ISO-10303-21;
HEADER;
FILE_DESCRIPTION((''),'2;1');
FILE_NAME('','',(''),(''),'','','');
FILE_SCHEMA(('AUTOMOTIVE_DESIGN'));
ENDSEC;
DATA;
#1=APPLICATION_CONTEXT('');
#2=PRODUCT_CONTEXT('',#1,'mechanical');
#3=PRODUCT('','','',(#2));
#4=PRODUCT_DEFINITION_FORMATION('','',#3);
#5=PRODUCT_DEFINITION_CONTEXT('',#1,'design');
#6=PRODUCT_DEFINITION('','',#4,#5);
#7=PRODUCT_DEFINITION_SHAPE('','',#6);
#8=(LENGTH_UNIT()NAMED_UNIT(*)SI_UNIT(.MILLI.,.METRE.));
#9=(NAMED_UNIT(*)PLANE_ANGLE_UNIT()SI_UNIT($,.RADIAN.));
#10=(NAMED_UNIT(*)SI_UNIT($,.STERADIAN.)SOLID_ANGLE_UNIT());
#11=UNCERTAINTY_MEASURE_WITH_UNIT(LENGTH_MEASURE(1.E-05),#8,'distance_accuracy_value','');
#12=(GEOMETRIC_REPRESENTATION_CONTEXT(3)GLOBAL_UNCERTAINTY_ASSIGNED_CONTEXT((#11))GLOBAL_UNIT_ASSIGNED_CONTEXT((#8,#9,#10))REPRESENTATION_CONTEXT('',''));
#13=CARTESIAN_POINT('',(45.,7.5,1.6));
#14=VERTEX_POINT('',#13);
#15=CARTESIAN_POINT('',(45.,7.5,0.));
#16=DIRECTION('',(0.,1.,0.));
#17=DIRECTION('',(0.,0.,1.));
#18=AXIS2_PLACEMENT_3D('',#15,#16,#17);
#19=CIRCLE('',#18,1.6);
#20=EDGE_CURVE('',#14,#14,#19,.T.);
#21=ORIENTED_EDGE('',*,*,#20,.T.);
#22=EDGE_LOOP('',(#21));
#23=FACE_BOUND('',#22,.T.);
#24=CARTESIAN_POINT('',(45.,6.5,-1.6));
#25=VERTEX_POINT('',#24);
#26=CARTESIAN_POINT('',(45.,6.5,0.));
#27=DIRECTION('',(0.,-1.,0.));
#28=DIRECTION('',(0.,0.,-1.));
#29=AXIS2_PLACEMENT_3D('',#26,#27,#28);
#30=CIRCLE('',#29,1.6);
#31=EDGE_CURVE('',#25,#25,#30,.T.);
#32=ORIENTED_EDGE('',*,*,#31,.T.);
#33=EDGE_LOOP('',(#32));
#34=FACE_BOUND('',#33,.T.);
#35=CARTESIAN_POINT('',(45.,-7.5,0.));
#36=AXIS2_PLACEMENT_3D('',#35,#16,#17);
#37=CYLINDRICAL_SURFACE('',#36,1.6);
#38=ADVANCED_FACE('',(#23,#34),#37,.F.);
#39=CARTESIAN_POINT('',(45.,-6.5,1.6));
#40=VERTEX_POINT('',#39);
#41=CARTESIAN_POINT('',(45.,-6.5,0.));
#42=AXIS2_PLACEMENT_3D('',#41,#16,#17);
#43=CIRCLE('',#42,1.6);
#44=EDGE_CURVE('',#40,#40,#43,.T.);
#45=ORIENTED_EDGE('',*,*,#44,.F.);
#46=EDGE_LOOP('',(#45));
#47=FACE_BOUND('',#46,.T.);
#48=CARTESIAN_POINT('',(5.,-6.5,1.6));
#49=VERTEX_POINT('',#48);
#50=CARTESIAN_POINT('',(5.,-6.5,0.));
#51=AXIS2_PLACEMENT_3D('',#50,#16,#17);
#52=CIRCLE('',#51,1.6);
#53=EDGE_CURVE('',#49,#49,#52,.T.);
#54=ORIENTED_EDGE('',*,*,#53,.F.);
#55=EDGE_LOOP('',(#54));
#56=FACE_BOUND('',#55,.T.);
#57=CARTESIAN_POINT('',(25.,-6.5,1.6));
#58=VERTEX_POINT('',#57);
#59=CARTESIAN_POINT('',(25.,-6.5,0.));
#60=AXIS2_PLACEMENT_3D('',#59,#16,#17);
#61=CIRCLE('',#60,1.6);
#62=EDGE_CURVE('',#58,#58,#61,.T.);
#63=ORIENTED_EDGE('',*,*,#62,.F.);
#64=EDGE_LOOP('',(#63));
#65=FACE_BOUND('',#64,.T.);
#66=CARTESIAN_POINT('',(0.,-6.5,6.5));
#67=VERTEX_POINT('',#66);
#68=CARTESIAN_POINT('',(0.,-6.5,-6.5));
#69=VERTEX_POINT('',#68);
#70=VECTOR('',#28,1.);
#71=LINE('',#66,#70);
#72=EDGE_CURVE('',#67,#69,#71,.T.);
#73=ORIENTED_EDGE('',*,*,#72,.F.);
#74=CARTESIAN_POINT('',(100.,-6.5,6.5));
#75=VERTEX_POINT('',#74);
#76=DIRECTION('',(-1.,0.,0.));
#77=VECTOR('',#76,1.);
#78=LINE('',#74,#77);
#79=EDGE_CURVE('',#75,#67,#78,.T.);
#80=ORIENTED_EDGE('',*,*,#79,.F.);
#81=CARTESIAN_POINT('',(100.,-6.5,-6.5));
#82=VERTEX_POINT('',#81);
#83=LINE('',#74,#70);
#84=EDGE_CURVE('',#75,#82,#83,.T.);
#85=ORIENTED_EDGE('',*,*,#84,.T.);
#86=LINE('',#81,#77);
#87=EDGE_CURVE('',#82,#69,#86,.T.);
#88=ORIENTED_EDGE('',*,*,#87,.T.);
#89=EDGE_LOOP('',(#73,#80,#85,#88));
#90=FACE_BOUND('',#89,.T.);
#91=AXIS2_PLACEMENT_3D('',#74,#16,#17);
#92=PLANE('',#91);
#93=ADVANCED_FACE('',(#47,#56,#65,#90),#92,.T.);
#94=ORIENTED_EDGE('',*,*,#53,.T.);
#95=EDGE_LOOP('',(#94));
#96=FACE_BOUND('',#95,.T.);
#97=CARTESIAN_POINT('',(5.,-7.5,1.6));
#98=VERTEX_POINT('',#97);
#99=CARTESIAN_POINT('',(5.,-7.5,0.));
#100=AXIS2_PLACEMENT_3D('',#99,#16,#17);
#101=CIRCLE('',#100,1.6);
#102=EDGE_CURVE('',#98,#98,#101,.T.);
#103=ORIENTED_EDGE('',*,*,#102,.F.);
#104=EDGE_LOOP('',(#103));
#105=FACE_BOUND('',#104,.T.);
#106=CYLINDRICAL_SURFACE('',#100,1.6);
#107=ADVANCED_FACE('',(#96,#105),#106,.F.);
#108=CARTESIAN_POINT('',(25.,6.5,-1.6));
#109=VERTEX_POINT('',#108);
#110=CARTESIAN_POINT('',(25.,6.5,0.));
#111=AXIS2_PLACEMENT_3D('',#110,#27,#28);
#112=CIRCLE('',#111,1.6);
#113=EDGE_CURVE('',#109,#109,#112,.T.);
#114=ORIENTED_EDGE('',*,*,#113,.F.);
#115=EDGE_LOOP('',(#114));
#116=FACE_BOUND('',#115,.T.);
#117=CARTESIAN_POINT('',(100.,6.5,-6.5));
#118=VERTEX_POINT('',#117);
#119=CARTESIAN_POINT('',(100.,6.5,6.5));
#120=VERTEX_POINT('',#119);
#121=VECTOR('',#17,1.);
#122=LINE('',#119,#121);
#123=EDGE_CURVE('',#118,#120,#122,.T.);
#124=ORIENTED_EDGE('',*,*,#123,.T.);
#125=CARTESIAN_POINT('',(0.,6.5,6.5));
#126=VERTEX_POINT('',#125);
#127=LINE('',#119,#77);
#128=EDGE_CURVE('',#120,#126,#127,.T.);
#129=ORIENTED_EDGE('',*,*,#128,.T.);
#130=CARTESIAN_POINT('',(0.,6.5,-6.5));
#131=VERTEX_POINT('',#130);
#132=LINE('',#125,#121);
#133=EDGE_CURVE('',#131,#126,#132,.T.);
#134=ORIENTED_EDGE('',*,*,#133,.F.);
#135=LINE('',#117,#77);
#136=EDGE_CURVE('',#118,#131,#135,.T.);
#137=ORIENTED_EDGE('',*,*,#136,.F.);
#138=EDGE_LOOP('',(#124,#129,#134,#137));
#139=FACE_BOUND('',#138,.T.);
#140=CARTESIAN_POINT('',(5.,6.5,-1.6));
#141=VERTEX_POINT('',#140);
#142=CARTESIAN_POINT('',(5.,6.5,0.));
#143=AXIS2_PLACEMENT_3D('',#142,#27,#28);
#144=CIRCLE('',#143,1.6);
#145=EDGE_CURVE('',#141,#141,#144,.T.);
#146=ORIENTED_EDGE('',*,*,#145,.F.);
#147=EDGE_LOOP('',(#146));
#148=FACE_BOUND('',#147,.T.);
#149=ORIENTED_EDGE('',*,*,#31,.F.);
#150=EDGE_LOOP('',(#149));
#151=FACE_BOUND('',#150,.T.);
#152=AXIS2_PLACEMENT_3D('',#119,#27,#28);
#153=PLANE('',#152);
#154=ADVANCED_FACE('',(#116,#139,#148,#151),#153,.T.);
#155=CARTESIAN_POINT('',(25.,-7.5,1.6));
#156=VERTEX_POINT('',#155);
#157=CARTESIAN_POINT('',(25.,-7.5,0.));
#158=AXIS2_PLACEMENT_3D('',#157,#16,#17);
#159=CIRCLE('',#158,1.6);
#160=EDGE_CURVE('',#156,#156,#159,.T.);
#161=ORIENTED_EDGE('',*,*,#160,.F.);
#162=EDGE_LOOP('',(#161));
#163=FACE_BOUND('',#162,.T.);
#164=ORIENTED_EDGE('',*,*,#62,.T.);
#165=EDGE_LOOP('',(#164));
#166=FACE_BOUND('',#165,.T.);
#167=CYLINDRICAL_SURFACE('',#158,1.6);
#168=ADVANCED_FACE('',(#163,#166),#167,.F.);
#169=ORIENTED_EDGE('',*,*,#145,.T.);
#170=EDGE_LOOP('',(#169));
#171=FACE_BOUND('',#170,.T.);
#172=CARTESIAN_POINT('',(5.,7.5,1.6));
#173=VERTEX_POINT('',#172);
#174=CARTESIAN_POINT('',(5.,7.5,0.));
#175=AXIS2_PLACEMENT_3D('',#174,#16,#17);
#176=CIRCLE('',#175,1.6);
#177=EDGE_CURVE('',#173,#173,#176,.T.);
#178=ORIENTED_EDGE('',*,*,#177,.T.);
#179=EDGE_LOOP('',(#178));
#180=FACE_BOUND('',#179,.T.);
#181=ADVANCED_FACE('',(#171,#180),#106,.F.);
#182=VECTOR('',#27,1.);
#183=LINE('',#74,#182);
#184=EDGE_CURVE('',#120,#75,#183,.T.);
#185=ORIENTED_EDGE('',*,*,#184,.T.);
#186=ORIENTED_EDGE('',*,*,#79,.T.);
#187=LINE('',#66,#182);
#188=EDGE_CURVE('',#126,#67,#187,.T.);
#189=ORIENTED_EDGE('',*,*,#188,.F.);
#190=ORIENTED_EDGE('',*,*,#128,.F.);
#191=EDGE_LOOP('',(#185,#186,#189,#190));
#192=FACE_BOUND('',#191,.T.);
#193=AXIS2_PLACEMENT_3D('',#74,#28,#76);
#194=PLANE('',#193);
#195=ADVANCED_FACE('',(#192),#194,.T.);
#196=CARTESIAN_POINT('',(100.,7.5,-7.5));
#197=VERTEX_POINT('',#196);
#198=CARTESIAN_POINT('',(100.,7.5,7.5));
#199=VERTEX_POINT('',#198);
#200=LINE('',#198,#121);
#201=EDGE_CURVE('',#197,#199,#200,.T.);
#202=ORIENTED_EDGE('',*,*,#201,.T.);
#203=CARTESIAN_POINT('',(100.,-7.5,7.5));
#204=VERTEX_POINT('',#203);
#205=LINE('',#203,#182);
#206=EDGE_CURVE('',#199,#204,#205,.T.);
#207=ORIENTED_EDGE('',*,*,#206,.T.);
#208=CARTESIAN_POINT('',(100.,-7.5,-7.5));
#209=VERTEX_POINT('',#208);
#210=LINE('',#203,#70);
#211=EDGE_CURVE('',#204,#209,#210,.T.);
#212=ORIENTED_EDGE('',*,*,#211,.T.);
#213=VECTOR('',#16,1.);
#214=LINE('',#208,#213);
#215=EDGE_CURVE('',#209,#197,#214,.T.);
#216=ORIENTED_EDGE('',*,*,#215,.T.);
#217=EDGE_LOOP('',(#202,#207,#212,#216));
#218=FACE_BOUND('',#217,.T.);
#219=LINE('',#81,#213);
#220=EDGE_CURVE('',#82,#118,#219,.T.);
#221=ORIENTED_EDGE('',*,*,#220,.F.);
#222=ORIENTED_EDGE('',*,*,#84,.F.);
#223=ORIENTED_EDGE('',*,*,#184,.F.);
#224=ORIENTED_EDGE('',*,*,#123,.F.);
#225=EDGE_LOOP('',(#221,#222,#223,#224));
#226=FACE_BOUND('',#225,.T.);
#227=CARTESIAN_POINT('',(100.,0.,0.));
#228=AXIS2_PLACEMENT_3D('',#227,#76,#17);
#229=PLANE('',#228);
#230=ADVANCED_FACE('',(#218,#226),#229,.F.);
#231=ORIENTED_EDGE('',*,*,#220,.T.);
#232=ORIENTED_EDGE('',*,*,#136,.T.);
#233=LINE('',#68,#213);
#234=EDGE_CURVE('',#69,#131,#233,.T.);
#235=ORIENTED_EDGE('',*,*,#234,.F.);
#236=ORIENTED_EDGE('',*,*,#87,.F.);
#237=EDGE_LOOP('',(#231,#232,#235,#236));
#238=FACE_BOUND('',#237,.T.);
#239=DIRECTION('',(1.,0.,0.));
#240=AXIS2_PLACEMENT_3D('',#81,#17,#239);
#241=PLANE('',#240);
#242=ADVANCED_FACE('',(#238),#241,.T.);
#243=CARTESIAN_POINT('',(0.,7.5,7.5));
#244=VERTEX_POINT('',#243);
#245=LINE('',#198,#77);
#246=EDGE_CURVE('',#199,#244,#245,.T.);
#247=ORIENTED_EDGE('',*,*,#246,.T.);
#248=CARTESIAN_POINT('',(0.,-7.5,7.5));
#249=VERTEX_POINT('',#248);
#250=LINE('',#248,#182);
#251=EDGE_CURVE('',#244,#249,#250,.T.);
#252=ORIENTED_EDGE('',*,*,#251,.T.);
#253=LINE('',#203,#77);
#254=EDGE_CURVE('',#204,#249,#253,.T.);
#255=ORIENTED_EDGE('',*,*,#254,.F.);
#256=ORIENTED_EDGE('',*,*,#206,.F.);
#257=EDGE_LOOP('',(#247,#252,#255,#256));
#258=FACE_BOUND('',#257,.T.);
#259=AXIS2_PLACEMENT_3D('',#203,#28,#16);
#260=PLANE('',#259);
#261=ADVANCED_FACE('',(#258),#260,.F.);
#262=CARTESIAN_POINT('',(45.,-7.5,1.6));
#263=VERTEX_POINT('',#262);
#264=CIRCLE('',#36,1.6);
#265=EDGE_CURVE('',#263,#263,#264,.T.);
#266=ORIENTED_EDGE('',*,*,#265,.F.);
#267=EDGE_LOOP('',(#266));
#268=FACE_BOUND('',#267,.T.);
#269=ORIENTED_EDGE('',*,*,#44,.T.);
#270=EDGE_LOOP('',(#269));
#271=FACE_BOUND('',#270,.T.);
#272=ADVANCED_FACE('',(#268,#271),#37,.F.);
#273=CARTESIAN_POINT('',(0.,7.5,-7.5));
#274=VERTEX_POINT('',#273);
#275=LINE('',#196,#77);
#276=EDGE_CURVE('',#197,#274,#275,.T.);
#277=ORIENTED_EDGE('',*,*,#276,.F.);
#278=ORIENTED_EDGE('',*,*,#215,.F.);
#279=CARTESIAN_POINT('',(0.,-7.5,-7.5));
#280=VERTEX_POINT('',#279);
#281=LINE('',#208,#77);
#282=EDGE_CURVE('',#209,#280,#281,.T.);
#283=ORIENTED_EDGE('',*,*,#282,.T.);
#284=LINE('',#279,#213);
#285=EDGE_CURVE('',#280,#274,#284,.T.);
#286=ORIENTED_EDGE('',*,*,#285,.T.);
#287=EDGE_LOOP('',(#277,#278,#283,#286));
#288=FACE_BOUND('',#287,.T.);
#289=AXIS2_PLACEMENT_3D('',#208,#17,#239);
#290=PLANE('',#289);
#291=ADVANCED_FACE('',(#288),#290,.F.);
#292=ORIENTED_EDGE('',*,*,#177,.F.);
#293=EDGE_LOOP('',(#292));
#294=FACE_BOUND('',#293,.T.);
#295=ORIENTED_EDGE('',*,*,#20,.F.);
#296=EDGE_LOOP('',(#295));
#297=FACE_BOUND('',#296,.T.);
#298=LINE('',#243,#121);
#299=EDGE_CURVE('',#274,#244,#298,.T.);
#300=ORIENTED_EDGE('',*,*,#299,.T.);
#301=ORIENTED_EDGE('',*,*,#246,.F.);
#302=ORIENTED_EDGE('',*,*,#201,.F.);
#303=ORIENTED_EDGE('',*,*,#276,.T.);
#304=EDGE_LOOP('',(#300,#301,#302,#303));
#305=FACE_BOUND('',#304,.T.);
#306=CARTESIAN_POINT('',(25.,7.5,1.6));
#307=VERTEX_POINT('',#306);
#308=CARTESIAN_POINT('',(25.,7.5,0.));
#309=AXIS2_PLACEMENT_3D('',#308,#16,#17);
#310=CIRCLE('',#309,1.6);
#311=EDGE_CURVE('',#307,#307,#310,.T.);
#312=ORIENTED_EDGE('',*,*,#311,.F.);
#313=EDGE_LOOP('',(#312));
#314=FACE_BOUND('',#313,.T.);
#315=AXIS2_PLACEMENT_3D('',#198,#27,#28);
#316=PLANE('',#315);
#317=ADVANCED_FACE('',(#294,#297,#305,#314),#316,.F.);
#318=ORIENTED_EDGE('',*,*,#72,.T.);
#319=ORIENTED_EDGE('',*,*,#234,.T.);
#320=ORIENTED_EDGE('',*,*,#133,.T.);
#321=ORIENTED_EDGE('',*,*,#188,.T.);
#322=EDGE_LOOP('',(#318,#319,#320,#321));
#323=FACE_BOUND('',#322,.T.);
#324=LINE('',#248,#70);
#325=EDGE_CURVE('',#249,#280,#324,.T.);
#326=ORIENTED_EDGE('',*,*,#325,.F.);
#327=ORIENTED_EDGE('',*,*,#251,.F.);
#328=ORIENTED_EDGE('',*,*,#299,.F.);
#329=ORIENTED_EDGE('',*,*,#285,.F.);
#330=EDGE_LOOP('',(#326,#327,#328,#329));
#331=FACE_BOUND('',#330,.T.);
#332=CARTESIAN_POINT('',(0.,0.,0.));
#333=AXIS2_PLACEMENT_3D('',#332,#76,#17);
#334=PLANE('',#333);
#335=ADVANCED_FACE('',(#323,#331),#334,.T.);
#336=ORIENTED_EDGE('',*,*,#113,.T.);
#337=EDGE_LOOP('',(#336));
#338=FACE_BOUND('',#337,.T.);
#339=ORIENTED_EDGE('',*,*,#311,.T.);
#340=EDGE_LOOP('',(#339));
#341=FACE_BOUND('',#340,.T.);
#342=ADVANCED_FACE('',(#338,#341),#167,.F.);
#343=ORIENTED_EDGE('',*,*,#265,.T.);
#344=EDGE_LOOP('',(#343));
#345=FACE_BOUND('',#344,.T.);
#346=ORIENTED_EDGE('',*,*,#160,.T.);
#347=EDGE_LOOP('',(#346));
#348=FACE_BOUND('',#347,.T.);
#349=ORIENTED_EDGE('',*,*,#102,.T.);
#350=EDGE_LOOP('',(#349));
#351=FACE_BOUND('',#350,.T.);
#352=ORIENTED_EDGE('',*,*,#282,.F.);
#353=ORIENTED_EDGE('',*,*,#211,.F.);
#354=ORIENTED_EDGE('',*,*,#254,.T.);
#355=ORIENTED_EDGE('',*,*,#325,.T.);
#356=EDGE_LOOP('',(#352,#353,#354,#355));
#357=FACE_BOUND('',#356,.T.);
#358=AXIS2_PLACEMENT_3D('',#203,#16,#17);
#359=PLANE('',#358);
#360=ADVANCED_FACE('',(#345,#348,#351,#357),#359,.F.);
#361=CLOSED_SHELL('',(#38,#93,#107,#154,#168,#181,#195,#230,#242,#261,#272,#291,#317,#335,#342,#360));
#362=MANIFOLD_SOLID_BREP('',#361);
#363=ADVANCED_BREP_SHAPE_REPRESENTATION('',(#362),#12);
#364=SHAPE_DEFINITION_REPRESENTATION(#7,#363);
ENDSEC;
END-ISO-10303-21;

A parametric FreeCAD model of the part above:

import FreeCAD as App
import Part
import Sketcher

doc = App.newDocument("Part")
body = doc.addObject("PartDesign::Body", "Body")

sketch1 = body.newObject("Sketcher::SketchObject", "Sketch")
sketch1.AttachmentSupport = (doc.getObject("YZ_Plane"), [""])
sketch1.MapMode = "FlatFace"
sketch1.addGeometry([
    Part.LineSegment(App.Vector(8, 8, 0), App.Vector(-8, 8, 0)),
    Part.LineSegment(App.Vector(-8, 8, 0), App.Vector(-8, -8, 0)),
    Part.LineSegment(App.Vector(-8, -8, 0), App.Vector(8, -8, 0)),
    Part.LineSegment(App.Vector(8, -8, 0), App.Vector(8, 8, 0)),
    Part.LineSegment(App.Vector(-6, -6, 0), App.Vector(-6, 6, 0)),
    Part.LineSegment(App.Vector(-6, 6, 0), App.Vector(6, 6, 0)),
    Part.LineSegment(App.Vector(6, 6, 0), App.Vector(6, -6, 0)),
    Part.LineSegment(App.Vector(6, -6, 0), App.Vector(-6, -6, 0)),
], False)
sketch1.addConstraint([
    Sketcher.Constraint("Coincident", 0, 2, 1, 1),
    Sketcher.Constraint("Coincident", 1, 2, 2, 1),
    Sketcher.Constraint("Coincident", 2, 2, 3, 1),
    Sketcher.Constraint("Coincident", 3, 2, 0, 1),
    Sketcher.Constraint("Coincident", 4, 2, 5, 1),
    Sketcher.Constraint("Coincident", 5, 2, 6, 1),
    Sketcher.Constraint("Coincident", 6, 2, 7, 1),
    Sketcher.Constraint("Coincident", 7, 2, 4, 1),
    Sketcher.Constraint("Horizontal", 0),
    Sketcher.Constraint("Vertical", 1),
    Sketcher.Constraint("Horizontal", 2),
    Sketcher.Constraint("Vertical", 3),
    Sketcher.Constraint("Vertical", 4),
    Sketcher.Constraint("Horizontal", 5),
    Sketcher.Constraint("Vertical", 6),
    Sketcher.Constraint("Horizontal", 7),
    Sketcher.Constraint("Symmetric", 0, 2, 2, 2, -1, 1),
    Sketcher.Constraint("Symmetric", 4, 2, 6, 2, -1, 1),
    Sketcher.Constraint("Equal", 2, 1),
    Sketcher.Constraint("Equal", 7, 4),
    Sketcher.Constraint("DistanceX", 0, 2, 0, 1, 15.0),
    Sketcher.Constraint("DistanceX", 5, 1, 5, 2, 13.0),
])
pad1 = body.newObject("PartDesign::Pad", "Pad")
pad1.Profile = sketch1
pad1.Length = 100

sketch2 = body.newObject("Sketcher::SketchObject", "Sketch001")
sketch2.AttachmentSupport = (doc.getObject("XZ_Plane"), [""])
sketch2.MapMode = "FlatFace"
sketch2.AttachmentOffset = App.Placement(App.Vector(0, 0, -7.5), App.Rotation())
sketch2.addGeometry([
    Part.Circle(App.Vector(45, 0, 0), App.Vector(0, 0, 1), 1.6),
    Part.Circle(App.Vector(25, 0, 0), App.Vector(0, 0, 1), 1.6),
    Part.Circle(App.Vector(5, 0, 0), App.Vector(0, 0, 1), 1.6),
], False)
sketch2.addConstraint([
    Sketcher.Constraint("Equal", 0, 1),
    Sketcher.Constraint("Equal", 1, 2),
    Sketcher.Constraint("PointOnObject", 0, 3, -1),
    Sketcher.Constraint("PointOnObject", 1, 3, -1),
    Sketcher.Constraint("PointOnObject", 2, 3, -1),
    Sketcher.Constraint("Diameter", 0, 3.2),
    Sketcher.Constraint("DistanceX", -1, 1, 0, 3, 45.0),
    Sketcher.Constraint("DistanceX", -1, 1, 1, 3, 25.0),
    Sketcher.Constraint("DistanceX", -1, 1, 2, 3, 5.0),
])
pocket1 = body.newObject("PartDesign::Pocket", "Pocket")
pocket1.Profile = sketch2
pocket1.Type = "ThroughAll"
pocket1.Reversed = True

doc.recompute()
